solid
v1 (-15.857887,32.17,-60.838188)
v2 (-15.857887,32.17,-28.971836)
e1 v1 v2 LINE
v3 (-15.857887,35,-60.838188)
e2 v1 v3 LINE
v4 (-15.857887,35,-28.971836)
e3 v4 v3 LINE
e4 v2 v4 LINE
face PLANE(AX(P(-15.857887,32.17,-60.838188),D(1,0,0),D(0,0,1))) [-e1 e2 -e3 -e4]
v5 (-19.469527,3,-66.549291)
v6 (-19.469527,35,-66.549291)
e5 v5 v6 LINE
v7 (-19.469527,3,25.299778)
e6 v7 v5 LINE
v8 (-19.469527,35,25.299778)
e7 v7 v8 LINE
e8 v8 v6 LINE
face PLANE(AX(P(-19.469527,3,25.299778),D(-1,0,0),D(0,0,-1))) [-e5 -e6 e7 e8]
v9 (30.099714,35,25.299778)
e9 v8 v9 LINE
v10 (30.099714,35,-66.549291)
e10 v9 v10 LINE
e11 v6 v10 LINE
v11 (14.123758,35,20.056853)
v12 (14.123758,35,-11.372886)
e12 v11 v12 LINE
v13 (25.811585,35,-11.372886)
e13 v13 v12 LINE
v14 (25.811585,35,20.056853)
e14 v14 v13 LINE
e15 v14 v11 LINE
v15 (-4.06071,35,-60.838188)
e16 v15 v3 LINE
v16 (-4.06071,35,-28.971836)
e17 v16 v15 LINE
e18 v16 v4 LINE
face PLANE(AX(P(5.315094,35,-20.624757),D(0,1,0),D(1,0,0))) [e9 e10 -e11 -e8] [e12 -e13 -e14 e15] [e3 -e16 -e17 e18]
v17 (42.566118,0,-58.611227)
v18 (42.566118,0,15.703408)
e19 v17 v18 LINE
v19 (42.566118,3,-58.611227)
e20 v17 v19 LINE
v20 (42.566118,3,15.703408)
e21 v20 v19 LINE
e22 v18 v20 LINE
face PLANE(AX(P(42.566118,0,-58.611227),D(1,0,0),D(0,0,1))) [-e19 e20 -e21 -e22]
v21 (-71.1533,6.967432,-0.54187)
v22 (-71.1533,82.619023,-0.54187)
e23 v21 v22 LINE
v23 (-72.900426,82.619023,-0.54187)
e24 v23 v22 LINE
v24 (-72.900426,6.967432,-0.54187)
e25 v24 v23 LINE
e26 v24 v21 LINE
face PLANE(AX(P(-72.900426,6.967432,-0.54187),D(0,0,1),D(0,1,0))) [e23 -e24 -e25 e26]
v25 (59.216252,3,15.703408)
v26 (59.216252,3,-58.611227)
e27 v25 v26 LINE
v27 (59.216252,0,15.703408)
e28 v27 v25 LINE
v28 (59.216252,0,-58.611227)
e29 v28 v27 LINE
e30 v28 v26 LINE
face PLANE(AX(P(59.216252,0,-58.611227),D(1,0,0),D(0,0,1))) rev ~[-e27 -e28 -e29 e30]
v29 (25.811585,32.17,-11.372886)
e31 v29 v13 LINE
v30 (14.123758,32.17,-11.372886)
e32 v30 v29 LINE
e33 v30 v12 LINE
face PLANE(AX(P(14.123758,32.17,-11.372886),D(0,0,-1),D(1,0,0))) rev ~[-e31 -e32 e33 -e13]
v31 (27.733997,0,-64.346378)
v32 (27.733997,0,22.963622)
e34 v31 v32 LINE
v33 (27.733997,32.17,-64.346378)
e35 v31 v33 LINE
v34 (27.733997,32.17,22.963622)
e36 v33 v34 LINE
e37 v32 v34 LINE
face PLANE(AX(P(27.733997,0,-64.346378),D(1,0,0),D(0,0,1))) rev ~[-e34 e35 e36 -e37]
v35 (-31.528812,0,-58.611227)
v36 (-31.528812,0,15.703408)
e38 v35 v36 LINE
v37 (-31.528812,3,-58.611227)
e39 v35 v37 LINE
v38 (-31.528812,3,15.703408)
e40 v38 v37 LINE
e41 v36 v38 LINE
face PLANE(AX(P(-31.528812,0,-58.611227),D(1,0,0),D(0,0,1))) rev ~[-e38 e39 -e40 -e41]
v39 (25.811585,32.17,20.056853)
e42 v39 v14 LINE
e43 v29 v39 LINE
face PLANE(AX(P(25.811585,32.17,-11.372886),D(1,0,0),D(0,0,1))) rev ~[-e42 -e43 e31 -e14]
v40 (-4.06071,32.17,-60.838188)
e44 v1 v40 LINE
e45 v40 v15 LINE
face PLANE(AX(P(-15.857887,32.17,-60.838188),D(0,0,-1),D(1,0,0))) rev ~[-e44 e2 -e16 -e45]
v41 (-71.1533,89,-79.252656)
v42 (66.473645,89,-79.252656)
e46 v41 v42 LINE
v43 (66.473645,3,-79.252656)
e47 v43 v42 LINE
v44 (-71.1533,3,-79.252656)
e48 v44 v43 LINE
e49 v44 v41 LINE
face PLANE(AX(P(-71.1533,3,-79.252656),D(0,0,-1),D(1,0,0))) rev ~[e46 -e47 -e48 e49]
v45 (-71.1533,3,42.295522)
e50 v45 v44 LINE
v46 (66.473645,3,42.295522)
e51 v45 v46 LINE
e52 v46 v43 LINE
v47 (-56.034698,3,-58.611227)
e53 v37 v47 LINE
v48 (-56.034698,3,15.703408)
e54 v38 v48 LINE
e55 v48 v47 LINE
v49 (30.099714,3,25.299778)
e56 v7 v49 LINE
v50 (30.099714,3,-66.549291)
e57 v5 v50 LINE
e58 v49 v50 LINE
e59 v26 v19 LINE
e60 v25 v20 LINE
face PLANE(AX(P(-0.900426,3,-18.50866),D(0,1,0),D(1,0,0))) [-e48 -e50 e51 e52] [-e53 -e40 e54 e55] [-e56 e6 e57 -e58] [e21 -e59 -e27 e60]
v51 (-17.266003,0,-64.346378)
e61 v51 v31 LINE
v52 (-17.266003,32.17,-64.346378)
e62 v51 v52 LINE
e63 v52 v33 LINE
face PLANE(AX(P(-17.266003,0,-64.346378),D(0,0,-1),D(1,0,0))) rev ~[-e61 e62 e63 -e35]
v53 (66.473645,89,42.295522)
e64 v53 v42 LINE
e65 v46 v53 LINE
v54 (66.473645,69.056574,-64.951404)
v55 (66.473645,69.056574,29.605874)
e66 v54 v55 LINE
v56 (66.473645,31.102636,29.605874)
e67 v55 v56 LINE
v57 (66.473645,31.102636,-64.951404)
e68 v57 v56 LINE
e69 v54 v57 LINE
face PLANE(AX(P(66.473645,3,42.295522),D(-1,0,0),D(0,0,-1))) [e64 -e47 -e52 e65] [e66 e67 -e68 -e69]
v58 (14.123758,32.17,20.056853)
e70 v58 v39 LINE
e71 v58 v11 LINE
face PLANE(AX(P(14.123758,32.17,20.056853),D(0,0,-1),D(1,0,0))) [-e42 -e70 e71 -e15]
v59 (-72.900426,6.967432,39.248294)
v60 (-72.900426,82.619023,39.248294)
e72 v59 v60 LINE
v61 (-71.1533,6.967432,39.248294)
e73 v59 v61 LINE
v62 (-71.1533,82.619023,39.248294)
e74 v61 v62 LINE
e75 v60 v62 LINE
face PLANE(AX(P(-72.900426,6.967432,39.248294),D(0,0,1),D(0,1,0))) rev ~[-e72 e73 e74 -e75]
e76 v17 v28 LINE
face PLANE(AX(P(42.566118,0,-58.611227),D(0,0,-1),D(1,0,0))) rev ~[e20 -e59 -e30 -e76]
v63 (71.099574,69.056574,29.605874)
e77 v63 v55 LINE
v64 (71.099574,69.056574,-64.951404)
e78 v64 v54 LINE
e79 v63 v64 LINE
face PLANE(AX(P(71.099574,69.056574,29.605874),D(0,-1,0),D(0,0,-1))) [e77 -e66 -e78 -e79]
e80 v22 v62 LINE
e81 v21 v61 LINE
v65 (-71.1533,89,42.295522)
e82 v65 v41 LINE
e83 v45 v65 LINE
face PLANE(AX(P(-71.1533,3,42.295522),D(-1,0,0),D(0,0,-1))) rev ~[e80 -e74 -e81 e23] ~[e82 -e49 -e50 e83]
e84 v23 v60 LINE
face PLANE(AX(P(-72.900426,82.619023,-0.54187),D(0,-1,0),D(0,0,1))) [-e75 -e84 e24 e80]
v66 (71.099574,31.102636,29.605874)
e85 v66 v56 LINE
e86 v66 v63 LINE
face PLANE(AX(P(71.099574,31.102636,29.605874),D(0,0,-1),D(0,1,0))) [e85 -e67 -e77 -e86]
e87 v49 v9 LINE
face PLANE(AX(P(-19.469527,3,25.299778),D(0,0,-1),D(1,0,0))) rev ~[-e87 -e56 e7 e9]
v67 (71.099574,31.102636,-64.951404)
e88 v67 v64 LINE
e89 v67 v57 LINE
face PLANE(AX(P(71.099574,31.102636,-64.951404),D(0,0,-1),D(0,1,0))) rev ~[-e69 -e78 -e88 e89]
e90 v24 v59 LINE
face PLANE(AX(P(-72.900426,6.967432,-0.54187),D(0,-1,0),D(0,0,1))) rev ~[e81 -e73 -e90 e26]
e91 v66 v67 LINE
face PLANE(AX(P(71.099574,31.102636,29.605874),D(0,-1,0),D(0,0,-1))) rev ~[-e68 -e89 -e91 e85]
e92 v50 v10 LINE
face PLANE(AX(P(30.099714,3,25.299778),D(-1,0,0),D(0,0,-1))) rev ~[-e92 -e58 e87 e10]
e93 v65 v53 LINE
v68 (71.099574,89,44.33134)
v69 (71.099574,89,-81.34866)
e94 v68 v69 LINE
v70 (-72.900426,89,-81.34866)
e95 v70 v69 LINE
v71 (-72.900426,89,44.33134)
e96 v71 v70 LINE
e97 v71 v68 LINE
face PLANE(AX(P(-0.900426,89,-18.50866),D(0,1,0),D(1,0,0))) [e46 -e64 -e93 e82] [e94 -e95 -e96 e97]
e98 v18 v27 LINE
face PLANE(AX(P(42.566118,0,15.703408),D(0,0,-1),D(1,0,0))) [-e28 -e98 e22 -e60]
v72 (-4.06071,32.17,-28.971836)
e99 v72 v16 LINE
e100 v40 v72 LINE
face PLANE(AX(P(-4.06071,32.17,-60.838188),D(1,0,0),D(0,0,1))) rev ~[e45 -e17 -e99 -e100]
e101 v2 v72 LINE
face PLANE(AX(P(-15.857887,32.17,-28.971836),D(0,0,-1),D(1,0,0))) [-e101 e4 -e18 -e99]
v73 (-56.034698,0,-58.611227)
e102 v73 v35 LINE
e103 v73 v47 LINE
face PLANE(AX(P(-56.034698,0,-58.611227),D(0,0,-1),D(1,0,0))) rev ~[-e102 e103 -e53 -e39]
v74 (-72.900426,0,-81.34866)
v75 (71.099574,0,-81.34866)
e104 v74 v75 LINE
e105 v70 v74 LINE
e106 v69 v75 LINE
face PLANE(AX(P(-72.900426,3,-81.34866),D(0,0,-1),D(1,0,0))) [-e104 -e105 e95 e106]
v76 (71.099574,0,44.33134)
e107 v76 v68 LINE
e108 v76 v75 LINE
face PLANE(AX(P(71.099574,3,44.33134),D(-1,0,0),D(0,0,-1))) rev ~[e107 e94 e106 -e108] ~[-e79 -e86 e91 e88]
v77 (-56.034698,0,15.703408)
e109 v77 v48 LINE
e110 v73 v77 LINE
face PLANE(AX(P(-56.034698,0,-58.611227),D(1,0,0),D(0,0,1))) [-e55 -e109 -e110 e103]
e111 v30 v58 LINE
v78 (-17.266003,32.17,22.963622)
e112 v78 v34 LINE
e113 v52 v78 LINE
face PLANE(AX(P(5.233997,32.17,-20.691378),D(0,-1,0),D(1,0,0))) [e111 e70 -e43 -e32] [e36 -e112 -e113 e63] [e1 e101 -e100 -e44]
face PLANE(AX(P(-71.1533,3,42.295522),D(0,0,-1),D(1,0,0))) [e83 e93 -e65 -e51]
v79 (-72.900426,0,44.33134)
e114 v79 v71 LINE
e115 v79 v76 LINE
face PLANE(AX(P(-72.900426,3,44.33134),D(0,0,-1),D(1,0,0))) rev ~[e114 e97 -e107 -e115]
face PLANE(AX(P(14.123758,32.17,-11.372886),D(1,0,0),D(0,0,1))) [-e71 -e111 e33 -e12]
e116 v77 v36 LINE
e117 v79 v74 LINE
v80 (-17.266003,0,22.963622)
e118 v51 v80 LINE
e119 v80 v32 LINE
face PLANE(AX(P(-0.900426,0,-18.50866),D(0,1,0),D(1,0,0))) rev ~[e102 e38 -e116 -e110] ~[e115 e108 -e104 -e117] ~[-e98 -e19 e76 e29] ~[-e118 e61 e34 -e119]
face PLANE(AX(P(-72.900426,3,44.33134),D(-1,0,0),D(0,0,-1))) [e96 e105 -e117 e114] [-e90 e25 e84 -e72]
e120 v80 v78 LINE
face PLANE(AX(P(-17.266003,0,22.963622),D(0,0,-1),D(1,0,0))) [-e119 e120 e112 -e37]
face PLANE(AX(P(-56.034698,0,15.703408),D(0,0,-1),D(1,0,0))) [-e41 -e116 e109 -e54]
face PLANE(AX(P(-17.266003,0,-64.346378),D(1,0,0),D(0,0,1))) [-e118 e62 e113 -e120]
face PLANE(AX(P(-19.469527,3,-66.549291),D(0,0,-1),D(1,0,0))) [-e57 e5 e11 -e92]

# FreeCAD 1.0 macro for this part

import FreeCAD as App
import Part
import Sketcher
from FreeCAD import Vector


def add_polygon(sketch, points):
    """Adds a closed chain of lines whose ends are joined by coincident constraints."""
    first, n = sketch.GeometryCount, len(points)
    for a, b in zip(points, points[1:] + points[:1]):
        sketch.addGeometry(Part.LineSegment(App.Vector(*a, 0), App.Vector(*b, 0)), False)
    for i in range(n):
        sketch.addConstraint(Sketcher.Constraint("Coincident", first + i, 2, first + (i + 1) % n, 1))

doc = App.newDocument("Part")
params = doc.addObject("Spreadsheet::Sheet", "Params")
for row, (alias, value) in enumerate([
    ("sketch1_width", "144 mm"),
    ("sketch1_height", "125.68 mm"),
    ("pad1_length", "3 mm"),
    ("sketch2_width", "144 mm"),
    ("sketch2_height", "125.68 mm"),
    ("pad2_length", "86 mm"),
    ("pocket1_length", "20 mm"),
    ("pocket2_length", "20 mm"),
    ("pad3_length", "32 mm"),
    ("sketch6_width", "45 mm"),
    ("sketch6_height", "87.31 mm"),
    ("pocket3_length", "32.17 mm"),
    ("pocket4_length", "40 mm"),
    ("pocket5_length", "40 mm"),
    ("pocket6_length", "40 mm"),
], start=1):
    params.set(f"A{row}", alias)
    params.set(f"B{row}", "=" + value)
    params.setAlias(f"B{row}", alias)

body = doc.addObject("PartDesign::Body", "Body")

sketch1 = doc.addObject("Sketcher::SketchObject", "Sketch")
body.addObject(sketch1)
sketch1.AttachmentSupport = (doc.XZ_Plane, [""])
sketch1.MapMode = "FlatFace"
add_polygon(sketch1, [(-72.900426, -81.34866), (-72.900426, 44.33134), (71.099574, 44.33134), (71.099574, -81.34866)])
sketch1.addConstraint(Sketcher.Constraint("Vertical", 0))
sketch1.addConstraint(Sketcher.Constraint("Horizontal", 1))
sketch1.addConstraint(Sketcher.Constraint("Vertical", 2))
sketch1.addConstraint(Sketcher.Constraint("Horizontal", 3))
sketch1.addConstraint(Sketcher.Constraint("DistanceX", 1, 1, 1, 2, 144.0))
sketch1.addConstraint(Sketcher.Constraint("DistanceY", 0, 1, 0, 2, 125.68))
sketch1.addConstraint(Sketcher.Constraint("DistanceY", -1, 1, 0, 2, 44.33134))
sketch1.addConstraint(Sketcher.Constraint("DistanceX", 0, 2, -1, 1, 72.900426))
sketch1.setExpression("Constraints[8]", "Params.sketch1_width")
sketch1.setExpression("Constraints[9]", "Params.sketch1_height")
pad1 = doc.addObject("PartDesign::Pad", "Pad")
body.addObject(pad1)
pad1.Profile = sketch1
pad1.setExpression("Length", "Params.pad1_length")
pad1.Reversed = True

sketch2 = doc.addObject("Sketcher::SketchObject", "Sketch001")
body.addObject(sketch2)
sketch2.AttachmentSupport = (doc.XZ_Plane, [""])
sketch2.MapMode = "FlatFace"
sketch2.AttachmentOffset = App.Placement(Vector(0, 0, -3), App.Rotation())
add_polygon(sketch2, [(-72.900426, -81.34866), (-72.900426, 44.33134), (71.099574, 44.33134), (71.099574, -81.34866)])
add_polygon(sketch2, [(66.473645, 42.295522), (-71.1533, 42.295522), (-71.1533, -79.252656), (66.473645, -79.252656)])
sketch2.addConstraint(Sketcher.Constraint("Vertical", 0))
sketch2.addConstraint(Sketcher.Constraint("Horizontal", 1))
sketch2.addConstraint(Sketcher.Constraint("Vertical", 2))
sketch2.addConstraint(Sketcher.Constraint("Horizontal", 3))
sketch2.addConstraint(Sketcher.Constraint("Horizontal", 4))
sketch2.addConstraint(Sketcher.Constraint("Vertical", 5))
sketch2.addConstraint(Sketcher.Constraint("Horizontal", 6))
sketch2.addConstraint(Sketcher.Constraint("Vertical", 7))
sketch2.addConstraint(Sketcher.Constraint("DistanceX", 1, 1, 1, 2, 144.0))
sketch2.addConstraint(Sketcher.Constraint("DistanceY", 0, 1, 0, 2, 125.68))
sketch2.addConstraint(Sketcher.Constraint("DistanceX", 4, 2, -1, 1, 71.1533))
sketch2.addConstraint(Sketcher.Constraint("DistanceX", 4, 2, 4, 1, 137.626945))
sketch2.addConstraint(Sketcher.Constraint("DistanceY", 5, 2, 5, 1, 121.548178))
sketch2.addConstraint(Sketcher.Constraint("DistanceY", -1, 1, 0, 2, 44.33134))
sketch2.addConstraint(Sketcher.Constraint("DistanceY", 4, 2, 0, 2, 2.035818))
sketch2.addConstraint(Sketcher.Constraint("DistanceX", 6, 2, 2, 2, 4.625929))
sketch2.setExpression("Constraints[16]", "Params.sketch2_width")
sketch2.setExpression("Constraints[17]", "Params.sketch2_height")
pad2 = doc.addObject("PartDesign::Pad", "Pad001")
body.addObject(pad2)
pad2.Profile = sketch2
pad2.setExpression("Length", "Params.pad2_length")
pad2.Reversed = True

sketch3 = doc.addObject("Sketcher::SketchObject", "Sketch002")
body.addObject(sketch3)
sketch3.AttachmentSupport = (doc.YZ_Plane, [""])
sketch3.MapMode = "FlatFace"
sketch3.AttachmentOffset = App.Placement(Vector(0, 0, 71.099574), App.Rotation())
add_polygon(sketch3, [(69.056574, 29.605874), (31.102636, 29.605874), (31.102636, -64.951404), (69.056574, -64.951404)])
sketch3.addConstraint(Sketcher.Constraint("Horizontal", 0))
sketch3.addConstraint(Sketcher.Constraint("Vertical", 1))
sketch3.addConstraint(Sketcher.Constraint("Horizontal", 2))
sketch3.addConstraint(Sketcher.Constraint("Vertical", 3))
sketch3.addConstraint(Sketcher.Constraint("DistanceX", 0, 2, 0, 1, 37.953937))
sketch3.addConstraint(Sketcher.Constraint("DistanceY", 1, 2, 1, 1, 94.557278))
sketch3.addConstraint(Sketcher.Constraint("DistanceX", -1, 1, 0, 2, 31.102636))
sketch3.addConstraint(Sketcher.Constraint("DistanceY", -1, 1, 0, 2, 29.605874))
pocket1 = doc.addObject("PartDesign::Pocket", "Pocket")
body.addObject(pocket1)
pocket1.Profile = sketch3
pocket1.setExpression("Length", "Params.pocket1_length")

sketch4 = doc.addObject("Sketcher::SketchObject", "Sketch003")
body.addObject(sketch4)
sketch4.AttachmentSupport = (doc.YZ_Plane, [""])
sketch4.MapMode = "FlatFace"
sketch4.AttachmentOffset = App.Placement(Vector(0, 0, -72.900426), App.Rotation())
add_polygon(sketch4, [(82.619023, -0.54187), (6.967432, -0.54187), (6.967432, 39.248294), (82.619023, 39.248294)])
sketch4.addConstraint(Sketcher.Constraint("Horizontal", 0))
sketch4.addConstraint(Sketcher.Constraint("Vertical", 1))
sketch4.addConstraint(Sketcher.Constraint("Horizontal", 2))
sketch4.addConstraint(Sketcher.Constraint("Vertical", 3))
sketch4.addConstraint(Sketcher.Constraint("DistanceX", 0, 2, 0, 1, 75.651591))
sketch4.addConstraint(Sketcher.Constraint("DistanceY", 1, 1, 1, 2, 39.790164))
sketch4.addConstraint(Sketcher.Constraint("DistanceY", 0, 2, -1, 1, 0.54187))
sketch4.addConstraint(Sketcher.Constraint("DistanceX", -1, 1, 0, 2, 6.967432))
pocket2 = doc.addObject("PartDesign::Pocket", "Pocket001")
body.addObject(pocket2)
pocket2.Profile = sketch4
pocket2.setExpression("Length", "Params.pocket2_length")
pocket2.Reversed = True

sketch5 = doc.addObject("Sketcher::SketchObject", "Sketch004")
body.addObject(sketch5)
sketch5.AttachmentSupport = (doc.XZ_Plane, [""])
sketch5.MapMode = "FlatFace"
sketch5.AttachmentOffset = App.Placement(Vector(0, 0, -3), App.Rotation())
add_polygon(sketch5, [(-19.469527, -66.549291), (-19.469527, 25.299778), (30.099714, 25.299778), (30.099714, -66.549291)])
sketch5.addConstraint(Sketcher.Constraint("Vertical", 0))
sketch5.addConstraint(Sketcher.Constraint("Horizontal", 1))
sketch5.addConstraint(Sketcher.Constraint("Vertical", 2))
sketch5.addConstraint(Sketcher.Constraint("Horizontal", 3))
sketch5.addConstraint(Sketcher.Constraint("DistanceX", 1, 1, 1, 2, 49.569241))
sketch5.addConstraint(Sketcher.Constraint("DistanceY", 0, 1, 0, 2, 91.849069))
sketch5.addConstraint(Sketcher.Constraint("DistanceY", 2, 2, -1, 1, 66.549291))
sketch5.addConstraint(Sketcher.Constraint("DistanceX", 0, 2, -1, 1, 19.469527))
pad3 = doc.addObject("PartDesign::Pad", "Pad002")
body.addObject(pad3)
pad3.Profile = sketch5
pad3.setExpression("Length", "Params.pad3_length")
pad3.Reversed = True

sketch6 = doc.addObject("Sketcher::SketchObject", "Sketch005")
body.addObject(sketch6)
sketch6.AttachmentSupport = (doc.XZ_Plane, [""])
sketch6.MapMode = "FlatFace"
add_polygon(sketch6, [(-17.266003, 22.963622), (-17.266003, -64.346378), (27.733997, -64.346378), (27.733997, 22.963622)])
sketch6.addConstraint(Sketcher.Constraint("Vertical", 0))
sketch6.addConstraint(Sketcher.Constraint("Horizontal", 1))
sketch6.addConstraint(Sketcher.Constraint("Vertical", 2))
sketch6.addConstraint(Sketcher.Constraint("Horizontal", 3))
sketch6.addConstraint(Sketcher.Constraint("DistanceX", 1, 1, 1, 2, 45.0))
sketch6.addConstraint(Sketcher.Constraint("DistanceY", 0, 2, 0, 1, 87.31))
sketch6.addConstraint(Sketcher.Constraint("DistanceX", 0, 2, -1, 1, 17.266003))
sketch6.addConstraint(Sketcher.Constraint("DistanceY", 0, 2, -1, 1, 64.346378))
sketch6.setExpression("Constraints[8]", "Params.sketch6_width")
sketch6.setExpression("Constraints[9]", "Params.sketch6_height")
pocket3 = doc.addObject("PartDesign::Pocket", "Pocket002")
body.addObject(pocket3)
pocket3.Profile = sketch6
pocket3.setExpression("Length", "Params.pocket3_length")

sketch7 = doc.addObject("Sketcher::SketchObject", "Sketch006")
body.addObject(sketch7)
sketch7.AttachmentSupport = (doc.XZ_Plane, [""])
sketch7.MapMode = "FlatFace"
sketch7.AttachmentOffset = App.Placement(Vector(0, 0, -32.17), App.Rotation())
add_polygon(sketch7, [(-15.857887, -28.971836), (-15.857887, -60.838188), (-4.06071, -60.838188), (-4.06071, -28.971836)])
sketch7.addConstraint(Sketcher.Constraint("Vertical", 0))
sketch7.addConstraint(Sketcher.Constraint("Horizontal", 1))
sketch7.addConstraint(Sketcher.Constraint("Vertical", 2))
sketch7.addConstraint(Sketcher.Constraint("Horizontal", 3))
sketch7.addConstraint(Sketcher.Constraint("DistanceX", 1, 1, 1, 2, 11.797176))
sketch7.addConstraint(Sketcher.Constraint("DistanceY", 0, 2, 0, 1, 31.866352))
sketch7.addConstraint(Sketcher.Constraint("DistanceY", 0, 2, -1, 1, 60.838188))
sketch7.addConstraint(Sketcher.Constraint("DistanceX", 1, 2, -1, 1, 4.06071))
pocket4 = doc.addObject("PartDesign::Pocket", "Pocket003")
body.addObject(pocket4)
pocket4.Profile = sketch7
pocket4.setExpression("Length", "Params.pocket4_length")

sketch8 = doc.addObject("Sketcher::SketchObject", "Sketch007")
body.addObject(sketch8)
sketch8.AttachmentSupport = (doc.XZ_Plane, [""])
sketch8.MapMode = "FlatFace"
sketch8.AttachmentOffset = App.Placement(Vector(0, 0, -32.17), App.Rotation())
add_polygon(sketch8, [(14.123758, 20.056853), (14.123758, -11.372886), (25.811585, -11.372886), (25.811585, 20.056853)])
sketch8.addConstraint(Sketcher.Constraint("Vertical", 0))
sketch8.addConstraint(Sketcher.Constraint("Horizontal", 1))
sketch8.addConstraint(Sketcher.Constraint("Vertical", 2))
sketch8.addConstraint(Sketcher.Constraint("Horizontal", 3))
sketch8.addConstraint(Sketcher.Constraint("DistanceY", 0, 2, 0, 1, 31.429739))
sketch8.addConstraint(Sketcher.Constraint("DistanceX", 1, 1, 1, 2, 11.687827))
sketch8.addConstraint(Sketcher.Constraint("DistanceX", -1, 1, 0, 2, 14.123758))
sketch8.addConstraint(Sketcher.Constraint("DistanceY", 0, 2, -1, 1, 11.372886))
pocket5 = doc.addObject("PartDesign::Pocket", "Pocket004")
body.addObject(pocket5)
pocket5.Profile = sketch8
pocket5.setExpression("Length", "Params.pocket5_length")

sketch9 = doc.addObject("Sketcher::SketchObject", "Sketch008")
body.addObject(sketch9)
sketch9.AttachmentSupport = (doc.XZ_Plane, [""])
sketch9.MapMode = "FlatFace"
add_polygon(sketch9, [(42.566118, 15.703408), (42.566118, -58.611227), (59.216252, -58.611227), (59.216252, 15.703408)])
add_polygon(sketch9, [(-56.034698, 15.703408), (-56.034698, -58.611227), (-31.528812, -58.611227), (-31.528812, 15.703408)])
sketch9.addConstraint(Sketcher.Constraint("Vertical", 0))
sketch9.addConstraint(Sketcher.Constraint("Horizontal", 1))
sketch9.addConstraint(Sketcher.Constraint("Vertical", 2))
sketch9.addConstraint(Sketcher.Constraint("Horizontal", 3))
sketch9.addConstraint(Sketcher.Constraint("Vertical", 4))
sketch9.addConstraint(Sketcher.Constraint("Horizontal", 5))
sketch9.addConstraint(Sketcher.Constraint("Vertical", 6))
sketch9.addConstraint(Sketcher.Constraint("Horizontal", 7))
sketch9.addConstraint(Sketcher.Constraint("Horizontal", 1, 2, 4, 2))
sketch9.addConstraint(Sketcher.Constraint("Horizontal", 3, 2, 6, 2))
sketch9.addConstraint(Sketcher.Constraint("DistanceX", 4, 2, -1, 1, 56.034698))
sketch9.addConstraint(Sketcher.Constraint("DistanceX", 1, 1, 1, 2, 16.650135))
sketch9.addConstraint(Sketcher.Constraint("DistanceX", 5, 1, 5, 2, 24.505886))
sketch9.addConstraint(Sketcher.Constraint("DistanceY", 0, 2, 0, 1, 74.314636))
sketch9.addConstraint(Sketcher.Constraint("DistanceY", -1, 1, 2, 2, 15.703408))
sketch9.addConstraint(Sketcher.Constraint("DistanceX", 4, 2, 1, 2, 115.25095))
pocket6 = doc.addObject("PartDesign::Pocket", "Pocket005")
body.addObject(pocket6)
pocket6.Profile = sketch9
pocket6.setExpression("Length", "Params.pocket6_length")

doc.recompute()
